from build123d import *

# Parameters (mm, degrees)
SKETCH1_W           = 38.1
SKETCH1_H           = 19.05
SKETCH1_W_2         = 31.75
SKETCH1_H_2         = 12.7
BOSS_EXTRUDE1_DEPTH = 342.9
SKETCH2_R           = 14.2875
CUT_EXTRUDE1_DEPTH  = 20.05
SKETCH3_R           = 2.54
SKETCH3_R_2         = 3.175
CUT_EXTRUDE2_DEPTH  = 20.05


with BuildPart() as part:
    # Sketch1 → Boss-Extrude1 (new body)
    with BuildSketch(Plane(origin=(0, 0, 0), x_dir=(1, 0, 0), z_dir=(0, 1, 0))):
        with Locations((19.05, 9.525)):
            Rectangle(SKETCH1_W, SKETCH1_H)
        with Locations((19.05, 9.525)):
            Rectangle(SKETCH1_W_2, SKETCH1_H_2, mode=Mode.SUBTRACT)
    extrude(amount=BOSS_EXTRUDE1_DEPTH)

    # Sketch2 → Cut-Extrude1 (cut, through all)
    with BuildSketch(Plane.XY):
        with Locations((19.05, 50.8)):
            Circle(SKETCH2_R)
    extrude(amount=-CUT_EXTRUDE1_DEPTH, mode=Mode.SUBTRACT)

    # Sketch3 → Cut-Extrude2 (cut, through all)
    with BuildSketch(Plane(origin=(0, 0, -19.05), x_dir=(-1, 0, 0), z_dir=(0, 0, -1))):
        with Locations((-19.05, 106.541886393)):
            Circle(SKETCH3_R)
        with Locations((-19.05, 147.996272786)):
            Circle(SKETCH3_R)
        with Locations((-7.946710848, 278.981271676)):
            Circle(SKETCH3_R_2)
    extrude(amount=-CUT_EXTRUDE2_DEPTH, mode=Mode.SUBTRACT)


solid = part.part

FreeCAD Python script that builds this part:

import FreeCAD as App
import Part
import Sketcher
from FreeCAD import Vector
Q = App.Units.Quantity

doc = App.newDocument("Part")
body = doc.addObject("PartDesign::Body", "Body")

# Sketch on XZ plane
sketch1 = body.newObject("Sketcher::SketchObject", "Sketch")
sketch1.AttachmentSupport = (doc.getObject("XZ_Plane"), [""])
sketch1.MapMode = "FlatFace"
sketch1.addGeometry([
    Part.LineSegment(Vector(0, -19, 0), Vector(0, 0, 0)),  # 0
    Part.LineSegment(Vector(0, 0, 0), Vector(38, 0, 0)),  # 1
    Part.LineSegment(Vector(38, 0, 0), Vector(38, -19, 0)),  # 2
    Part.LineSegment(Vector(38, -19, 0), Vector(0, -19, 0)),  # 3
    Part.LineSegment(Vector(35, -3, 0), Vector(3, -3, 0)),  # 4
    Part.LineSegment(Vector(3, -3, 0), Vector(3, -16, 0)),  # 5
    Part.LineSegment(Vector(3, -16, 0), Vector(35, -16, 0)),  # 6
    Part.LineSegment(Vector(35, -16, 0), Vector(35, -3, 0)),  # 7
], False)
sketch1.addConstraint([
    Sketcher.Constraint("Coincident", 0, 2, 1, 1),
    Sketcher.Constraint("Coincident", 1, 2, 2, 1),
    Sketcher.Constraint("Coincident", 2, 2, 3, 1),
    Sketcher.Constraint("Coincident", 3, 2, 0, 1),
    Sketcher.Constraint("Coincident", 4, 2, 5, 1),
    Sketcher.Constraint("Coincident", 5, 2, 6, 1),
    Sketcher.Constraint("Coincident", 6, 2, 7, 1),
    Sketcher.Constraint("Coincident", 7, 2, 4, 1),
    Sketcher.Constraint("Vertical", 0),
    Sketcher.Constraint("Horizontal", 1),
    Sketcher.Constraint("Vertical", 2),
    Sketcher.Constraint("Horizontal", 3),
    Sketcher.Constraint("Horizontal", 4),
    Sketcher.Constraint("Vertical", 5),
    Sketcher.Constraint("Horizontal", 6),
    Sketcher.Constraint("Vertical", 7),
    Sketcher.Constraint("Coincident", 0, 2, -1, 1),
    Sketcher.Constraint("DistanceX", 1, 1, 1, 2, Q("1.5 in")),
    Sketcher.Constraint("DistanceY", 5, 2, 5, 1, Q("0.5 in")),
    Sketcher.Constraint("DistanceX", 4, 2, 4, 1, Q("1.25 in")),
    Sketcher.Constraint("DistanceY", 0, 1, 0, 2, Q("0.75 in")),
    Sketcher.Constraint("DistanceX", -1, 1, 4, 2, Q("0.125 in")),
    Sketcher.Constraint("DistanceY", 4, 2, -1, 1, Q("0.125 in")),
])
pad1 = body.newObject("PartDesign::Pad", "Pad")
pad1.Profile = sketch1
pad1.Length = Q("13.5 in")
pad1.Reversed = True

# Sketch on XY plane
sketch2 = body.newObject("Sketcher::SketchObject", "Sketch001")
sketch2.AttachmentSupport = (doc.getObject("XY_Plane"), [""])
sketch2.MapMode = "FlatFace"
sketch2.addGeometry(Part.Circle(Vector(19, 51, 0), Vector(0, 0, 1), 14), False)
sketch2.addConstraint([
    Sketcher.Constraint("Diameter", 0, Q("1.125 in")),
    Sketcher.Constraint("DistanceY", -1, 1, 0, 3, Q("2 in")),
    Sketcher.Constraint("DistanceX", -1, 1, 0, 3, Q("0.75 in")),
])
pocket1 = body.newObject("PartDesign::Pocket", "Pocket")
pocket1.Profile = sketch2
pocket1.Type = "ThroughAll"

# Sketch on XY plane
sketch3 = body.newObject("Sketcher::SketchObject", "Sketch002")
sketch3.AttachmentSupport = (doc.getObject("XY_Plane"), [""])
sketch3.MapMode = "FlatFace"
sketch3.AttachmentOffset = App.Placement(Vector(0, 0, -0.75 * 25.4), App.Rotation())
sketch3.addGeometry([
    Part.Circle(Vector(19.1, 106.5, 0), Vector(0, 0, 1), 2.5),
    Part.Circle(Vector(19.1, 148, 0), Vector(0, 0, 1), 2.5),
    Part.Circle(Vector(7.9, 279, 0), Vector(0, 0, 1), 3.2),
], False)
sketch3.addConstraint([
    Sketcher.Constraint("Equal", 0, 1),
    Sketcher.Constraint("Vertical", 0, 3, 1, 3),
    Sketcher.Constraint("Diameter", 0, Q("0.2 in")),
    Sketcher.Constraint("Diameter", 2, Q("0.25 in")),
    Sketcher.Constraint("DistanceX", -1, 1, 0, 3, Q("0.75 in")),
    Sketcher.Constraint("DistanceY", 1, 3, 2, 3, Q("130.984999 mm")),
    Sketcher.Constraint("DistanceX", -1, 1, 2, 3, Q("7.946711 mm")),
    Sketcher.Constraint("DistanceY", -1, 1, 2, 3, Q("278.981272 mm")),
    Sketcher.Constraint("DistanceY", -1, 1, 0, 3, Q("106.541886 mm")),
])
pocket2 = body.newObject("PartDesign::Pocket", "Pocket001")
pocket2.Profile = sketch3
pocket2.Type = "ThroughAll"
pocket2.Reversed = True

doc.recompute()
